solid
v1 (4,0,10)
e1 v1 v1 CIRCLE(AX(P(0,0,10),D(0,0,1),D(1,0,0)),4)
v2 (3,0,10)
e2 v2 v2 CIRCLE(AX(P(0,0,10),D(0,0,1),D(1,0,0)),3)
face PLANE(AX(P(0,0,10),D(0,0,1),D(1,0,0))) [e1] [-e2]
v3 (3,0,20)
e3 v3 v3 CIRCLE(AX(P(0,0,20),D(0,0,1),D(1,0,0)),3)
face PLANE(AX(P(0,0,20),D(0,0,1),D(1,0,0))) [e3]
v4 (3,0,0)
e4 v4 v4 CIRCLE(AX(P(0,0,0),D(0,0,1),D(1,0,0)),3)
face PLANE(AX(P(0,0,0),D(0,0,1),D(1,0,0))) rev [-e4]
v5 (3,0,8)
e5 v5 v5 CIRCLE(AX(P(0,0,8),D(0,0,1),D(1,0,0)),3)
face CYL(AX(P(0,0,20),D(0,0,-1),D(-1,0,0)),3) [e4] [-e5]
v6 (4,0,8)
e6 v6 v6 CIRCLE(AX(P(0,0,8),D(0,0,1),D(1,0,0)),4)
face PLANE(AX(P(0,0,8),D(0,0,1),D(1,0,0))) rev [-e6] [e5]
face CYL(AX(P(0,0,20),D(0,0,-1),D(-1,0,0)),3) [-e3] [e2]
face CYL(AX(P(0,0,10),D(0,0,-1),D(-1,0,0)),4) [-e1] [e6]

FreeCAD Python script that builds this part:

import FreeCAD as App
import Part
import Sketcher
Q = App.Units.Quantity

doc = App.newDocument("Part")
params = doc.addObject("Spreadsheet::Sheet", "Params")
for row, (alias, value) in enumerate([
    ("sketch1_diameter", "6 mm"),
    ("pad1_length", "20 mm"),
    ("sketch2_diameter", "8 mm"),
    ("pad2_length", "2 mm"),
], start=1):
    params.set(f"A{row}", alias)
    params.set(f"B{row}", "=" + value)
    params.setAlias(f"B{row}", alias)

body = doc.addObject("PartDesign::Body", "Body")

sketch1 = body.newObject("Sketcher::SketchObject", "Sketch")
sketch1.AttachmentSupport = (doc.getObject("XY_Plane"), [""])
sketch1.MapMode = "FlatFace"
sketch1.addGeometry(Part.Circle(App.Vector(0, 0, 0), App.Vector(0, 0, 1), 3), False)
sketch1.addConstraint([
    Sketcher.Constraint("Coincident", 0, 3, -1, 1),
    Sketcher.Constraint("Diameter", 0, Q("6 mm")),
])
sketch1.setExpression("Constraints[1]", "Params.sketch1_diameter")
pad1 = body.newObject("PartDesign::Pad", "Pad")
pad1.Profile = sketch1
pad1.setExpression("Length", "Params.pad1_length")

sketch2 = body.newObject("Sketcher::SketchObject", "Sketch001")
sketch2.AttachmentSupport = (doc.getObject("XY_Plane"), [""])
sketch2.MapMode = "FlatFace"
sketch2.AttachmentOffset = App.Placement(App.Vector(0, 0, 8), App.Rotation())
sketch2.addGeometry(Part.Circle(App.Vector(0, 0, 0), App.Vector(0, 0, 1), 4), False)
sketch2.addConstraint([
    Sketcher.Constraint("Coincident", 0, 3, -1, 1),
    Sketcher.Constraint("Diameter", 0, Q("8 mm")),
])
sketch2.setExpression("Constraints[1]", "Params.sketch2_diameter")
pad2 = body.newObject("PartDesign::Pad", "Pad001")
pad2.Profile = sketch2
pad2.setExpression("Length", "Params.pad2_length")

doc.recompute()
